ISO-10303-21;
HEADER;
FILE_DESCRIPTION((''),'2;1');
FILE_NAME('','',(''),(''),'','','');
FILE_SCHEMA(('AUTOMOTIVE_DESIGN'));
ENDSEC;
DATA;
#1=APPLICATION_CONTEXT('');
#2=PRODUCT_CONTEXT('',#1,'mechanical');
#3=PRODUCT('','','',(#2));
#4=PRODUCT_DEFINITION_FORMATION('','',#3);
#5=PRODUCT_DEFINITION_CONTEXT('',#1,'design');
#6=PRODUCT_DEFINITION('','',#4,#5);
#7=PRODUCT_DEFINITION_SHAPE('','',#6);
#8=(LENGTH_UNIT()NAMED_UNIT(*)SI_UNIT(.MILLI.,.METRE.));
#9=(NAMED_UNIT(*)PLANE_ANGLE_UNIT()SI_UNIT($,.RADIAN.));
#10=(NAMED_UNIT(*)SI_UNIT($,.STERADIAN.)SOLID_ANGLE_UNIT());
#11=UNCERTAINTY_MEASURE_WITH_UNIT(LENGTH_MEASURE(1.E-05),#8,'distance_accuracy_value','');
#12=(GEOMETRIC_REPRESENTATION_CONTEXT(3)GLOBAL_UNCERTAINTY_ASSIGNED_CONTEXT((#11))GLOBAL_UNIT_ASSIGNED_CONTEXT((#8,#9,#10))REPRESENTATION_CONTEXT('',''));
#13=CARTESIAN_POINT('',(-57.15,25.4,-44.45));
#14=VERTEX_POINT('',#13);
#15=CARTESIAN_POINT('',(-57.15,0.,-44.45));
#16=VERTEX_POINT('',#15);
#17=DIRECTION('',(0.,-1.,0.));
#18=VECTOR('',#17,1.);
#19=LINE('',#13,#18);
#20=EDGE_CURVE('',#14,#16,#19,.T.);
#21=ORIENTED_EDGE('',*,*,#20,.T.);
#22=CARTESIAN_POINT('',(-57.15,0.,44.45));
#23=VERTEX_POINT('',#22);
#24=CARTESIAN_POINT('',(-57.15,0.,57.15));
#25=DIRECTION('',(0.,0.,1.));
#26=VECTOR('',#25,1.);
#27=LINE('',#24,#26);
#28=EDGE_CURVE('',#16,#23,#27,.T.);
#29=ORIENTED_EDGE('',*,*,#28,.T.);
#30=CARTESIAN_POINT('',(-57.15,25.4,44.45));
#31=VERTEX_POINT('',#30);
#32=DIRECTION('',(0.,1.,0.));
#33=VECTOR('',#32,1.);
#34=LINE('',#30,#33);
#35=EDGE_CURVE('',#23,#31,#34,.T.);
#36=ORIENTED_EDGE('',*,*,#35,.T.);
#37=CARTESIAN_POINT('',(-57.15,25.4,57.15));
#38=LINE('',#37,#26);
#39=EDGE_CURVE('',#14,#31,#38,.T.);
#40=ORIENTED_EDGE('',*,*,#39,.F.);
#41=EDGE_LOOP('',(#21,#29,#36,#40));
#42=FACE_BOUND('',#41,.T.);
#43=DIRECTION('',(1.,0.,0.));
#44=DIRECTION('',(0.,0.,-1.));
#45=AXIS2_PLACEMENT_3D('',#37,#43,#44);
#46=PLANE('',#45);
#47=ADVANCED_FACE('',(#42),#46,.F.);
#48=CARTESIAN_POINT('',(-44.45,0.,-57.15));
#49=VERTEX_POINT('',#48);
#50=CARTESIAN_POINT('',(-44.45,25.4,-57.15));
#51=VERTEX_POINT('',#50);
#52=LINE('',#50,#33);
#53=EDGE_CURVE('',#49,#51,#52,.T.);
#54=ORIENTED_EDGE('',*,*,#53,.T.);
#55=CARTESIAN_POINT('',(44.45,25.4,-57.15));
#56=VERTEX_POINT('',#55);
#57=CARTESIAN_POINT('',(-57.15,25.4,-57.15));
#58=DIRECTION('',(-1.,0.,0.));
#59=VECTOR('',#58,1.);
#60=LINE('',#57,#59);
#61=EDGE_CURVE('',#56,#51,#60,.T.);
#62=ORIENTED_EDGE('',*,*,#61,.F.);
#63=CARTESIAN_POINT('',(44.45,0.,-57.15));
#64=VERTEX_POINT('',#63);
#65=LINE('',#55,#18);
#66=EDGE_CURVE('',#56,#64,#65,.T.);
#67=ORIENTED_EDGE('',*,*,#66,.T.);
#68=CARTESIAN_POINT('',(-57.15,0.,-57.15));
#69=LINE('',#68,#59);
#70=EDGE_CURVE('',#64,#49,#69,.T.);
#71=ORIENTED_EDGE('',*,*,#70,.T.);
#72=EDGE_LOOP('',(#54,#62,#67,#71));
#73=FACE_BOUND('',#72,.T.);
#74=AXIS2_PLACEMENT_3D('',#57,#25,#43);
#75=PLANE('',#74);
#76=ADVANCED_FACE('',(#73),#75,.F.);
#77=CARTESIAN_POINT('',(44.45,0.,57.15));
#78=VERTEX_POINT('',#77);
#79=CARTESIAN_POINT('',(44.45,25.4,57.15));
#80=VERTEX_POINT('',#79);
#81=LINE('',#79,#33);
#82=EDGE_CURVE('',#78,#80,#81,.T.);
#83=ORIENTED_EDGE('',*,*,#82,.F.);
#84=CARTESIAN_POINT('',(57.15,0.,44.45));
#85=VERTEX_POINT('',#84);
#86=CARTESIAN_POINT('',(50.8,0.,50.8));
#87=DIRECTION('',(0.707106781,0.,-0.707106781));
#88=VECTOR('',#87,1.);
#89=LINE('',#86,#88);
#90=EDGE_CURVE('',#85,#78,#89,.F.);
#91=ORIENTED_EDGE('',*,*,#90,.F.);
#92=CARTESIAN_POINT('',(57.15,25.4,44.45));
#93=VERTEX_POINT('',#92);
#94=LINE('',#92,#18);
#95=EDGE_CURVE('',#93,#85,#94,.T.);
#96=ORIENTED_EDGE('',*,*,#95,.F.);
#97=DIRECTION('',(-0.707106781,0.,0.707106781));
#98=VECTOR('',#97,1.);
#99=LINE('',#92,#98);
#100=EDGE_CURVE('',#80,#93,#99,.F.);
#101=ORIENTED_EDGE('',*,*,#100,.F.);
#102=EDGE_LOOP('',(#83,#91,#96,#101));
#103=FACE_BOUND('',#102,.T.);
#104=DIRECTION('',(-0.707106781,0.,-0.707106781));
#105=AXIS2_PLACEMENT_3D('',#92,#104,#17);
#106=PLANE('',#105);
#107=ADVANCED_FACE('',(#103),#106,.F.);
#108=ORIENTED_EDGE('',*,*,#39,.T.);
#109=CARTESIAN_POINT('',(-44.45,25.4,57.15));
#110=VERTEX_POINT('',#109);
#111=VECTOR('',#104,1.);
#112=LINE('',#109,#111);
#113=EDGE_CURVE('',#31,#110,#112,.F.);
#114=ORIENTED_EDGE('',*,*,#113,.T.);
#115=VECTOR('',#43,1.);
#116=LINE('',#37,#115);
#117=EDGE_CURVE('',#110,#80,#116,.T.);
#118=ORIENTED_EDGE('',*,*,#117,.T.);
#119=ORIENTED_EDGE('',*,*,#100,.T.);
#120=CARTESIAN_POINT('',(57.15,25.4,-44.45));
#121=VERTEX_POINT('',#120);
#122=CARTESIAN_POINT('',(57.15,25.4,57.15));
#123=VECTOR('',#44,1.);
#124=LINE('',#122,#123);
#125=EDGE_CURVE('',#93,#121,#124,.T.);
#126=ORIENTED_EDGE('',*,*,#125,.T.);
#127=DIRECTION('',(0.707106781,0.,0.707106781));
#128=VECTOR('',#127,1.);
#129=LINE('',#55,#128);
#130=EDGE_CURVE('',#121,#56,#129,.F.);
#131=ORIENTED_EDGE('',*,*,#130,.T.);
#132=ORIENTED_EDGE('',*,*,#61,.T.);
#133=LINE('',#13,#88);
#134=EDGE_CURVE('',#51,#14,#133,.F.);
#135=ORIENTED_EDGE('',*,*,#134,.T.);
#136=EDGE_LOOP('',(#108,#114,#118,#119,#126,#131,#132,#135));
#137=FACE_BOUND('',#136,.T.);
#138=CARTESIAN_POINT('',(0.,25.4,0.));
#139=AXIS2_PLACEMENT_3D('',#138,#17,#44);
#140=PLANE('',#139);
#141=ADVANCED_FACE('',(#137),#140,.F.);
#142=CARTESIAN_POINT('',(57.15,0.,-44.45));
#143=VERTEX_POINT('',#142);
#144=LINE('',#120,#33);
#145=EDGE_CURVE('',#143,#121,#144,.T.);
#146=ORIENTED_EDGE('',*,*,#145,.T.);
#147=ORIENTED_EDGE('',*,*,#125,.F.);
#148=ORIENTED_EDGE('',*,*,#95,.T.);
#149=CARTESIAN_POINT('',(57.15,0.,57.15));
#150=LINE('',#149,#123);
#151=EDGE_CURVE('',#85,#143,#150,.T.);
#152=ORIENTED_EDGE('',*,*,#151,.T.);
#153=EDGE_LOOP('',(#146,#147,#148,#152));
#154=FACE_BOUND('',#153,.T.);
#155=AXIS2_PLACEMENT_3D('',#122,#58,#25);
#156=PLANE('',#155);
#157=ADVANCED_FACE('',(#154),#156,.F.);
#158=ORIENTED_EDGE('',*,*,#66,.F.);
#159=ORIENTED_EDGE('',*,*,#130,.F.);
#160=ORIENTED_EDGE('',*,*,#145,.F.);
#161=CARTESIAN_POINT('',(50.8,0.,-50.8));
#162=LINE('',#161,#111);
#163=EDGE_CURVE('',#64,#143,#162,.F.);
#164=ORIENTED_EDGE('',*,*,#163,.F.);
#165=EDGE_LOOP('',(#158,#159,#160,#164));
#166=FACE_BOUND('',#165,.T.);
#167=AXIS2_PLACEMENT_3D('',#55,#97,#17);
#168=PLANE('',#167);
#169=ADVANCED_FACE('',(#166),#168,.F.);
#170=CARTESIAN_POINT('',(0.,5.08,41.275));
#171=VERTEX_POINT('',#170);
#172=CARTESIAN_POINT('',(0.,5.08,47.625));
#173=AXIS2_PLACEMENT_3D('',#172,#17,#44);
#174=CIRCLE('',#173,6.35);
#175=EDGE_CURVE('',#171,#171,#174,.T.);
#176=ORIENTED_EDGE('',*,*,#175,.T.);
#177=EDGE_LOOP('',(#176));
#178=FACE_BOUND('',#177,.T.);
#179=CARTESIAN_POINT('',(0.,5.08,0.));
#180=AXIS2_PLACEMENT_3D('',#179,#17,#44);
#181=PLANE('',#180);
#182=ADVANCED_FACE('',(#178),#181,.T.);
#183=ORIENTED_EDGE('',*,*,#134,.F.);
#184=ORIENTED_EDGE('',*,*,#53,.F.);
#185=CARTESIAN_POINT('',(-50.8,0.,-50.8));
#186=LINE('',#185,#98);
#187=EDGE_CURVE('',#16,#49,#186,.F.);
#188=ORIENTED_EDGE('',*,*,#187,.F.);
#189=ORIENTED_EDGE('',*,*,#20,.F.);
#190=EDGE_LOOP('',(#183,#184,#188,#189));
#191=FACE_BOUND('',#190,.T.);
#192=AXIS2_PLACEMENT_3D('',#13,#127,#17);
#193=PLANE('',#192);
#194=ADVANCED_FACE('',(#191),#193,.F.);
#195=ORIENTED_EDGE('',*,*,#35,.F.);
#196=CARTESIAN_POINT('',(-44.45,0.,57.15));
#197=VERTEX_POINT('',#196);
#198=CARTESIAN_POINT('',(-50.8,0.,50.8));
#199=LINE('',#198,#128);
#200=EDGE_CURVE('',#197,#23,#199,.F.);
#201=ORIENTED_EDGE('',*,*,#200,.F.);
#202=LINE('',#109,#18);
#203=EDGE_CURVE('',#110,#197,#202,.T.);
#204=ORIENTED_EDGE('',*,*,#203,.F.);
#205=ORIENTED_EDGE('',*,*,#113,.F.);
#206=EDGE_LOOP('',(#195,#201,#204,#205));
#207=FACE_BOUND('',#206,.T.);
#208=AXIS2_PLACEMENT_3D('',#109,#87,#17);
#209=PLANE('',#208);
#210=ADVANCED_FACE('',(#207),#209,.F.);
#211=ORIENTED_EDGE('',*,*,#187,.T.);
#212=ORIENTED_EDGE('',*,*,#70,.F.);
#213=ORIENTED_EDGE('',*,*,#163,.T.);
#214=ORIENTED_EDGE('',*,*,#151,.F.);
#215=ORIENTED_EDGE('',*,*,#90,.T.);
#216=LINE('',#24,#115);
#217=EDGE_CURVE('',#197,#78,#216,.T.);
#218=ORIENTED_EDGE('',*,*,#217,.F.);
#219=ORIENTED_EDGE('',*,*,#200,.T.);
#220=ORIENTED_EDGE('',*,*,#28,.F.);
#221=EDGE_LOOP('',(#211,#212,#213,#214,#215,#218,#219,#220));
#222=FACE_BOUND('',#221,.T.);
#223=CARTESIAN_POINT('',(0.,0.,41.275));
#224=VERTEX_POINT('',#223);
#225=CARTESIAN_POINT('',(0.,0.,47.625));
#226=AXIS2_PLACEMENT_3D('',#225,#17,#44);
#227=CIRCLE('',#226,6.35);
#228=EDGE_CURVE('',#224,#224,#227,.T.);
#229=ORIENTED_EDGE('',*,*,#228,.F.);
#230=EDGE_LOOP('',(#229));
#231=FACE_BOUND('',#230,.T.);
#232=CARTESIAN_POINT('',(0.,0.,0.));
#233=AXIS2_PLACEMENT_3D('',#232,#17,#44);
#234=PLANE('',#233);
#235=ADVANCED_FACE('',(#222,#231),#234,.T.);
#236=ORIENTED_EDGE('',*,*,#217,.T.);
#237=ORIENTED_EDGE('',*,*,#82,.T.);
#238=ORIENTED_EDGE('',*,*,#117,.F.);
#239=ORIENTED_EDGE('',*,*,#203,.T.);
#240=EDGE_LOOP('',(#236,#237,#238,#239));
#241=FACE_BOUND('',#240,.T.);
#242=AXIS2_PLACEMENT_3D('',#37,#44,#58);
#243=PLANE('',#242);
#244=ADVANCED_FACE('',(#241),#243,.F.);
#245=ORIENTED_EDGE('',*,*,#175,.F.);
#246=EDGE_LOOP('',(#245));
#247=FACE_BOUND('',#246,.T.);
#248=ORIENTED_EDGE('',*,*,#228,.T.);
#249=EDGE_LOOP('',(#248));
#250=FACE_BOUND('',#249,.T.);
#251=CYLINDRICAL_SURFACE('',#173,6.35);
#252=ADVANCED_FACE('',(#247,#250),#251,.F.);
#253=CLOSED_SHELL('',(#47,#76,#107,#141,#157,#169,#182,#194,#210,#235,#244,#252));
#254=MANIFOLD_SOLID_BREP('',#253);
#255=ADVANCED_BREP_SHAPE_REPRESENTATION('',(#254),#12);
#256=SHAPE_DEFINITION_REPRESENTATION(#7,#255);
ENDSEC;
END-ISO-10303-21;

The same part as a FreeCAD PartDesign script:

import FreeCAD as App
import Part
import Sketcher
Q = App.Units.Quantity


def edges_at(feature, points):
    """Names of the edges that pass closest to the given points."""
    edges = feature.Shape.Edges
    near = lambda p: min(range(len(edges)), key=lambda i: edges[i].distToShape(Part.Vertex(*p))[0])
    return sorted({f"Edge{near(p) + 1}" for p in points})


def add_polygon(sketch, points):
    """Adds a closed chain of lines whose ends are joined by coincident constraints."""
    first, n = sketch.GeometryCount, len(points)
    for a, b in zip(points, points[1:] + points[:1]):
        sketch.addGeometry(Part.LineSegment(App.Vector(*a, 0), App.Vector(*b, 0)), False)
    for i in range(n):
        sketch.addConstraint(Sketcher.Constraint("Coincident", first + i, 2, first + (i + 1) % n, 1))

doc = App.newDocument("Part")
body = doc.addObject("PartDesign::Body", "Body")

# Sketch on XZ plane
sketch1 = body.newObject("Sketcher::SketchObject", "Sketch")
sketch1.AttachmentSupport = (doc.getObject("XZ_Plane"), [""])
sketch1.MapMode = "FlatFace"
add_polygon(sketch1, [(-57, -57), (-57, 57), (57, 57), (57, -57)])  # lines 0-3
sketch1.addConstraint([
    Sketcher.Constraint("Vertical", 0),
    Sketcher.Constraint("Horizontal", 1),
    Sketcher.Constraint("Vertical", 2),
    Sketcher.Constraint("Horizontal", 3),
    Sketcher.Constraint("Symmetric", 0, 2, 2, 2, -1, 1),
    Sketcher.Constraint("Equal", 3, 0),
    Sketcher.Constraint("DistanceX", 1, 1, 1, 2, Q("4.5 in")),
])
pad1 = body.newObject("PartDesign::Pad", "Pad")
pad1.Profile = sketch1
pad1.Length = Q("1 in")
pad1.Reversed = True
doc.recompute()

chamfer = body.newObject("PartDesign::Chamfer", "Chamfer")
chamfer.Base = (pad1, edges_at(pad1, [
    (57.15, 12.7, 57.15),
    (-57.15, 12.7, 57.15),
    (-57.15, 12.7, -57.15),
    (57.15, 12.7, -57.15),
]))
chamfer.Size = Q("0.5 in")

# Sketch on XZ plane
sketch2 = body.newObject("Sketcher::SketchObject", "Sketch001")
sketch2.AttachmentSupport = (doc.getObject("XZ_Plane"), [""])
sketch2.MapMode = "FlatFace"
sketch2.addGeometry(Part.Circle(App.Vector(0, 48, 0), App.Vector(0, 0, 1), 6), False)
sketch2.addConstraint([
    Sketcher.Constraint("PointOnObject", 0, 3, -2),
    Sketcher.Constraint("Diameter", 0, Q("0.5 in")),
    Sketcher.Constraint("DistanceY", -1, 1, 0, 3, Q("1.875 in")),
])
pocket1 = body.newObject("PartDesign::Pocket", "Pocket")
pocket1.Profile = sketch2
pocket1.Length = Q("0.2 in")

doc.recompute()
